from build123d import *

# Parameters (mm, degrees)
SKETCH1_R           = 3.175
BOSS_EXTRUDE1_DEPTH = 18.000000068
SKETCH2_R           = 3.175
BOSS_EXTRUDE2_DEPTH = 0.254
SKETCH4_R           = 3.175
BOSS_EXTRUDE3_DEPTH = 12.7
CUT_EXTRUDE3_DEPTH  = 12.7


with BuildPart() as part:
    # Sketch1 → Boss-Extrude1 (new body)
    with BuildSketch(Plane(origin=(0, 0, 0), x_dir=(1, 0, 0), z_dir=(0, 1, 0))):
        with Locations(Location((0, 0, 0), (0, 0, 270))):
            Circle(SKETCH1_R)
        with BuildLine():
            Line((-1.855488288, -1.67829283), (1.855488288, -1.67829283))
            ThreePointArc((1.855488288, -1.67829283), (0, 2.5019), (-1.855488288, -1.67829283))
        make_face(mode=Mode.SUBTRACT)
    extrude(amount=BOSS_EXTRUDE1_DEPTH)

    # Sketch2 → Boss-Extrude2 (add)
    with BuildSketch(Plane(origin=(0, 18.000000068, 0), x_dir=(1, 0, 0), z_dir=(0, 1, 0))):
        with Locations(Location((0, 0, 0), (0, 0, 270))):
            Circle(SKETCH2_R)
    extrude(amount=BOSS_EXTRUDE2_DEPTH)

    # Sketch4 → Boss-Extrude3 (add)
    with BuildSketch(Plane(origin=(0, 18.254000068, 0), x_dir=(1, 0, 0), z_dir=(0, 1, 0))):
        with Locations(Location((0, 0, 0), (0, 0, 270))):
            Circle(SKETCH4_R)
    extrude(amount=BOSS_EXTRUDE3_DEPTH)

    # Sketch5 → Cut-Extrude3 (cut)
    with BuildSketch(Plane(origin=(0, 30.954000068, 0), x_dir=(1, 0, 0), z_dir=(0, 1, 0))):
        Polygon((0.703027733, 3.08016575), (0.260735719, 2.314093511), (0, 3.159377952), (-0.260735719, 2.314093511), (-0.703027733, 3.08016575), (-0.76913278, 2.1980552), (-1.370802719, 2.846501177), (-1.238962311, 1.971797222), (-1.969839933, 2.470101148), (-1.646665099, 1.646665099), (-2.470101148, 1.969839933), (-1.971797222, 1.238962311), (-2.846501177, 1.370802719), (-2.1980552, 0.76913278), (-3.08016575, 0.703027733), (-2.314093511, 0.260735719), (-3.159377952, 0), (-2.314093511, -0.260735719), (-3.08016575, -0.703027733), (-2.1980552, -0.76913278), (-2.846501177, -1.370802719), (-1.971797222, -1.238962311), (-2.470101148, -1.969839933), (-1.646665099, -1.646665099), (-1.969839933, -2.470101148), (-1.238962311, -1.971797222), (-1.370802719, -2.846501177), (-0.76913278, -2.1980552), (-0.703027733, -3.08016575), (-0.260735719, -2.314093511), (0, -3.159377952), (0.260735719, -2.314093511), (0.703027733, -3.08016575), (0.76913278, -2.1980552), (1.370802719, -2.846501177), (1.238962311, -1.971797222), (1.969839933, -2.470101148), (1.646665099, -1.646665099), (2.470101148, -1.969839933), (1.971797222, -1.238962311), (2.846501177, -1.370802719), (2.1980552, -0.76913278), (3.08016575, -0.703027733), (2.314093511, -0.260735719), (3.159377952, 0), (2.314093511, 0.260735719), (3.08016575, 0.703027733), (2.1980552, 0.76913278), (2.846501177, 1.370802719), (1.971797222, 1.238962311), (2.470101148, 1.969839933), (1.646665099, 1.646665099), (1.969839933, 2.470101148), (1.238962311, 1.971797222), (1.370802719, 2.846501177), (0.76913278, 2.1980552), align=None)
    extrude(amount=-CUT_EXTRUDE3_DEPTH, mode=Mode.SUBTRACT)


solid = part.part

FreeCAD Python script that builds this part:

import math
import FreeCAD as App
import Part
import Sketcher
Q = App.Units.Quantity


def add_polygon(sketch, points):
    """Adds a closed chain of lines whose ends are joined by coincident constraints."""
    first, n = sketch.GeometryCount, len(points)
    for a, b in zip(points, points[1:] + points[:1]):
        sketch.addGeometry(Part.LineSegment(App.Vector(*a, 0), App.Vector(*b, 0)), False)
    for i in range(n):
        sketch.addConstraint(Sketcher.Constraint("Coincident", first + i, 2, first + (i + 1) % n, 1))

doc = App.newDocument("Part")
body = doc.addObject("PartDesign::Body", "Body")

sketch1 = body.newObject("Sketcher::SketchObject", "Sketch")
sketch1.AttachmentSupport = (doc.getObject("XZ_Plane"), [""])
sketch1.MapMode = "FlatFace"
sketch1.addGeometry([
    Part.Circle(App.Vector(0, 0, 0), App.Vector(0, 0, 1), 3.175),
    Part.LineSegment(App.Vector(1.855488, 1.678293, 0), App.Vector(-1.855488, 1.678293, 0)),
    Part.ArcOfCircle(Part.Circle(App.Vector(0, 0, 0), App.Vector(0, 0, 1), 2.5019), math.radians(137.870595), math.radians(402.129405)),
], False)
sketch1.addConstraint([
    Sketcher.Constraint("Coincident", 1, 1, 2, 2),
    Sketcher.Constraint("Coincident", 2, 1, 1, 2),
    Sketcher.Constraint("Horizontal", 1),
    Sketcher.Constraint("Coincident", 0, 3, -1, 1),
    Sketcher.Constraint("Coincident", 2, 3, -1, 1),
    Sketcher.Constraint("Diameter", 0, Q("0.25 in")),
    Sketcher.Constraint("Radius", 2, Q("0.0985 in")),
    Sketcher.Constraint("DistanceX", 1, 2, 1, 1, 3.710977),
])
pad1 = body.newObject("PartDesign::Pad", "Pad")
pad1.Profile = sketch1
pad1.Length = 18
pad1.Reversed = True

sketch2 = body.newObject("Sketcher::SketchObject", "Sketch001")
sketch2.AttachmentSupport = (doc.getObject("XZ_Plane"), [""])
sketch2.MapMode = "FlatFace"
sketch2.AttachmentOffset = App.Placement(App.Vector(0, 0, -18), App.Rotation())
sketch2.addGeometry(Part.Circle(App.Vector(0, 0, 0), App.Vector(0, 0, 1), 3.175), False)
sketch2.addConstraint([
    Sketcher.Constraint("Coincident", 0, 3, -1, 1),
    Sketcher.Constraint("Diameter", 0, Q("0.25 in")),
])
pad2 = body.newObject("PartDesign::Pad", "Pad001")
pad2.Profile = sketch2
pad2.Length = Q("0.01 in")
pad2.Reversed = True

sketch3 = body.newObject("Sketcher::SketchObject", "Sketch002")
sketch3.AttachmentSupport = (doc.getObject("XZ_Plane"), [""])
sketch3.MapMode = "FlatFace"
sketch3.AttachmentOffset = App.Placement(App.Vector(0, 0, -18.254), App.Rotation())
sketch3.addGeometry(Part.Circle(App.Vector(0, 0, 0), App.Vector(0, 0, 1), 3.175), False)
sketch3.addConstraint([
    Sketcher.Constraint("Coincident", 0, 3, -1, 1),
    Sketcher.Constraint("Diameter", 0, Q("0.25 in")),
])
pad3 = body.newObject("PartDesign::Pad", "Pad002")
pad3.Profile = sketch3
pad3.Length = Q("0.5 in")
pad3.Reversed = True

sketch4 = body.newObject("Sketcher::SketchObject", "Sketch003")
sketch4.AttachmentSupport = (doc.getObject("XZ_Plane"), [""])
sketch4.MapMode = "FlatFace"
sketch4.AttachmentOffset = App.Placement(App.Vector(0, 0, -30.954), App.Rotation())
add_polygon(sketch4, [(0.703028, -3.080166), (0.260736, -2.314094), (0, -3.159378), (-0.260736, -2.314094), (-0.703028, -3.080166), (-0.769133, -2.198055), (-1.370803, -2.846501), (-1.238962, -1.971797), (-1.96984, -2.470101), (-1.646665, -1.646665), (-2.470101, -1.96984), (-1.971797, -1.238962), (-2.846501, -1.370803), (-2.198055, -0.769133), (-3.080166, -0.703028), (-2.314094, -0.260736), (-3.159378, 0), (-2.314094, 0.260736), (-3.080166, 0.703028), (-2.198055, 0.769133), (-2.846501, 1.370803), (-1.971797, 1.238962), (-2.470101, 1.96984), (-1.646665, 1.646665), (-1.96984, 2.470101), (-1.238962, 1.971797), (-1.370803, 2.846501), (-0.769133, 2.198055), (-0.703028, 3.080166), (-0.260736, 2.314094), (0, 3.159378), (0.260736, 2.314094), (0.703028, 3.080166), (0.769133, 2.198055), (1.370803, 2.846501), (1.238962, 1.971797), (1.96984, 2.470101), (1.646665, 1.646665), (2.470101, 1.96984), (1.971797, 1.238962), (2.846501, 1.370803), (2.198055, 0.769133), (3.080166, 0.703028), (2.314094, 0.260736), (3.159378, 0), (2.314094, -0.260736), (3.080166, -0.703028), (2.198055, -0.769133), (2.846501, -1.370803), (1.971797, -1.238962), (2.470101, -1.96984), (1.646665, -1.646665), (1.96984, -2.470101), (1.238962, -1.971797), (1.370803, -2.846501), (0.769133, -2.198055)])
sketch4.addConstraint([
    Sketcher.Constraint("Symmetric", 0, 2, 28, 2, -1, 1),
    Sketcher.Constraint("Symmetric", 1, 2, 29, 2, -1, 1),
    Sketcher.Constraint("Symmetric", 2, 2, 30, 2, -1, 1),
    Sketcher.Constraint("Symmetric", 3, 2, 31, 2, -1, 1),
    Sketcher.Constraint("Symmetric", 4, 2, 32, 2, -1, 1),
    Sketcher.Constraint("Symmetric", 5, 2, 33, 2, -1, 1),
    Sketcher.Constraint("Symmetric", 6, 2, 34, 2, -1, 1),
    Sketcher.Constraint("Symmetric", 7, 2, 35, 2, -1, 1),
    Sketcher.Constraint("Symmetric", 8, 2, 36, 2, -1, 1),
    Sketcher.Constraint("Symmetric", 9, 2, 37, 2, -1, 1),
    Sketcher.Constraint("Symmetric", 10, 2, 38, 2, -1, 1),
    Sketcher.Constraint("Symmetric", 11, 2, 39, 2, -1, 1),
    Sketcher.Constraint("Symmetric", 12, 2, 40, 2, -1, 1),
    Sketcher.Constraint("Symmetric", 13, 2, 41, 2, -1, 1),
    Sketcher.Constraint("Symmetric", 14, 2, 42, 2, -1, 1),
    Sketcher.Constraint("Symmetric", 15, 2, 43, 2, -1, 1),
    Sketcher.Constraint("Symmetric", 16, 2, 44, 2, -1, 1),
    Sketcher.Constraint("Symmetric", 17, 2, 45, 2, -1, 1),
    Sketcher.Constraint("Symmetric", 18, 2, 46, 2, -1, 1),
    Sketcher.Constraint("Symmetric", 19, 2, 47, 2, -1, 1),
    Sketcher.Constraint("Symmetric", 20, 2, 48, 2, -1, 1),
    Sketcher.Constraint("Symmetric", 21, 2, 49, 2, -1, 1),
    Sketcher.Constraint("Symmetric", 22, 2, 50, 2, -1, 1),
    Sketcher.Constraint("Symmetric", 23, 2, 51, 2, -1, 1),
    Sketcher.Constraint("Symmetric", 24, 2, 52, 2, -1, 1),
    Sketcher.Constraint("Symmetric", 25, 2, 53, 2, -1, 1),
    Sketcher.Constraint("Symmetric", 26, 2, 54, 2, -1, 1),
    Sketcher.Constraint("Symmetric", 27, 2, 55, 2, -1, 1),
    Sketcher.Constraint("Symmetric", 0, 2, 2, 2, -2),
    Sketcher.Constraint("Symmetric", 27, 2, 31, 2, -2),
    Sketcher.Constraint("Symmetric", 26, 2, 32, 2, -2),
    Sketcher.Constraint("Symmetric", 25, 2, 33, 2, -2),
    Sketcher.Constraint("Symmetric", 24, 2, 34, 2, -2),
    Sketcher.Constraint("Symmetric", 23, 2, 35, 2, -2),
    Sketcher.Constraint("Symmetric", 22, 2, 36, 2, -2),
    Sketcher.Constraint("Symmetric", 21, 2, 37, 2, -2),
    Sketcher.Constraint("Symmetric", 20, 2, 38, 2, -2),
    Sketcher.Constraint("Symmetric", 19, 2, 39, 2, -2),
    Sketcher.Constraint("Symmetric", 18, 2, 40, 2, -2),
    Sketcher.Constraint("Symmetric", 17, 2, 41, 2, -2),
    Sketcher.Constraint("Symmetric", 16, 2, 42, 2, -2),
    Sketcher.Constraint("PointOnObject", 1, 2, -2),
    Sketcher.Constraint("PointOnObject", 15, 2, -1),
    Sketcher.Constraint("Perpendicular", 0, 14),
    Sketcher.Constraint("Perpendicular", 1, 15),
    Sketcher.Constraint("Perpendicular", 4, 18),
    Sketcher.Constraint("Perpendicular", 5, 19),
    Sketcher.Constraint("Perpendicular", 6, 20),
    Sketcher.Constraint("Perpendicular", 7, 21),
    Sketcher.Constraint("Perpendicular", 8, 22),
    Sketcher.Constraint("Equal", 0, 1),
    Sketcher.Constraint("Equal", 3, 4),
    Sketcher.Constraint("Equal", 4, 5),
    Sketcher.Constraint("Equal", 5, 6),
    Sketcher.Constraint("Equal", 6, 7),
    Sketcher.Constraint("Equal", 7, 8),
    Sketcher.Constraint("Equal", 8, 9),
    Sketcher.Constraint("Equal", 9, 10),
    Sketcher.Constraint("Equal", 10, 11),
    Sketcher.Constraint("Equal", 11, 12),
    Sketcher.Constraint("Equal", 12, 13),
    Sketcher.Constraint("Equal", 13, 14),
    Sketcher.Constraint("Equal", 14, 15),
    Sketcher.Constraint("Angle", 0, Q("120 deg")),
    Sketcher.Constraint("DistanceY", 5, 2, -1, 1, 2.846501),
    Sketcher.Constraint("DistanceY", 7, 2, -1, 1, 2.470101),
    Sketcher.Constraint("DistanceX", 6, 2, 0, 2, 1.499698),
    Sketcher.Constraint("DistanceX", 9, 2, 5, 2, 1.099298),
    Sketcher.Constraint("DistanceX", 13, 2, 8, 2, 1.433501),
    Sketcher.Constraint("DistanceX", 7, 2, -1, 1, 1.96984),
    Sketcher.Constraint("DistanceX", 2, 2, 0, 2, 0.521471),
])
pocket1 = body.newObject("PartDesign::Pocket", "Pocket")
pocket1.Profile = sketch4
pocket1.Length = Q("0.5 in")
pocket1.Reversed = True

doc.recompute()
